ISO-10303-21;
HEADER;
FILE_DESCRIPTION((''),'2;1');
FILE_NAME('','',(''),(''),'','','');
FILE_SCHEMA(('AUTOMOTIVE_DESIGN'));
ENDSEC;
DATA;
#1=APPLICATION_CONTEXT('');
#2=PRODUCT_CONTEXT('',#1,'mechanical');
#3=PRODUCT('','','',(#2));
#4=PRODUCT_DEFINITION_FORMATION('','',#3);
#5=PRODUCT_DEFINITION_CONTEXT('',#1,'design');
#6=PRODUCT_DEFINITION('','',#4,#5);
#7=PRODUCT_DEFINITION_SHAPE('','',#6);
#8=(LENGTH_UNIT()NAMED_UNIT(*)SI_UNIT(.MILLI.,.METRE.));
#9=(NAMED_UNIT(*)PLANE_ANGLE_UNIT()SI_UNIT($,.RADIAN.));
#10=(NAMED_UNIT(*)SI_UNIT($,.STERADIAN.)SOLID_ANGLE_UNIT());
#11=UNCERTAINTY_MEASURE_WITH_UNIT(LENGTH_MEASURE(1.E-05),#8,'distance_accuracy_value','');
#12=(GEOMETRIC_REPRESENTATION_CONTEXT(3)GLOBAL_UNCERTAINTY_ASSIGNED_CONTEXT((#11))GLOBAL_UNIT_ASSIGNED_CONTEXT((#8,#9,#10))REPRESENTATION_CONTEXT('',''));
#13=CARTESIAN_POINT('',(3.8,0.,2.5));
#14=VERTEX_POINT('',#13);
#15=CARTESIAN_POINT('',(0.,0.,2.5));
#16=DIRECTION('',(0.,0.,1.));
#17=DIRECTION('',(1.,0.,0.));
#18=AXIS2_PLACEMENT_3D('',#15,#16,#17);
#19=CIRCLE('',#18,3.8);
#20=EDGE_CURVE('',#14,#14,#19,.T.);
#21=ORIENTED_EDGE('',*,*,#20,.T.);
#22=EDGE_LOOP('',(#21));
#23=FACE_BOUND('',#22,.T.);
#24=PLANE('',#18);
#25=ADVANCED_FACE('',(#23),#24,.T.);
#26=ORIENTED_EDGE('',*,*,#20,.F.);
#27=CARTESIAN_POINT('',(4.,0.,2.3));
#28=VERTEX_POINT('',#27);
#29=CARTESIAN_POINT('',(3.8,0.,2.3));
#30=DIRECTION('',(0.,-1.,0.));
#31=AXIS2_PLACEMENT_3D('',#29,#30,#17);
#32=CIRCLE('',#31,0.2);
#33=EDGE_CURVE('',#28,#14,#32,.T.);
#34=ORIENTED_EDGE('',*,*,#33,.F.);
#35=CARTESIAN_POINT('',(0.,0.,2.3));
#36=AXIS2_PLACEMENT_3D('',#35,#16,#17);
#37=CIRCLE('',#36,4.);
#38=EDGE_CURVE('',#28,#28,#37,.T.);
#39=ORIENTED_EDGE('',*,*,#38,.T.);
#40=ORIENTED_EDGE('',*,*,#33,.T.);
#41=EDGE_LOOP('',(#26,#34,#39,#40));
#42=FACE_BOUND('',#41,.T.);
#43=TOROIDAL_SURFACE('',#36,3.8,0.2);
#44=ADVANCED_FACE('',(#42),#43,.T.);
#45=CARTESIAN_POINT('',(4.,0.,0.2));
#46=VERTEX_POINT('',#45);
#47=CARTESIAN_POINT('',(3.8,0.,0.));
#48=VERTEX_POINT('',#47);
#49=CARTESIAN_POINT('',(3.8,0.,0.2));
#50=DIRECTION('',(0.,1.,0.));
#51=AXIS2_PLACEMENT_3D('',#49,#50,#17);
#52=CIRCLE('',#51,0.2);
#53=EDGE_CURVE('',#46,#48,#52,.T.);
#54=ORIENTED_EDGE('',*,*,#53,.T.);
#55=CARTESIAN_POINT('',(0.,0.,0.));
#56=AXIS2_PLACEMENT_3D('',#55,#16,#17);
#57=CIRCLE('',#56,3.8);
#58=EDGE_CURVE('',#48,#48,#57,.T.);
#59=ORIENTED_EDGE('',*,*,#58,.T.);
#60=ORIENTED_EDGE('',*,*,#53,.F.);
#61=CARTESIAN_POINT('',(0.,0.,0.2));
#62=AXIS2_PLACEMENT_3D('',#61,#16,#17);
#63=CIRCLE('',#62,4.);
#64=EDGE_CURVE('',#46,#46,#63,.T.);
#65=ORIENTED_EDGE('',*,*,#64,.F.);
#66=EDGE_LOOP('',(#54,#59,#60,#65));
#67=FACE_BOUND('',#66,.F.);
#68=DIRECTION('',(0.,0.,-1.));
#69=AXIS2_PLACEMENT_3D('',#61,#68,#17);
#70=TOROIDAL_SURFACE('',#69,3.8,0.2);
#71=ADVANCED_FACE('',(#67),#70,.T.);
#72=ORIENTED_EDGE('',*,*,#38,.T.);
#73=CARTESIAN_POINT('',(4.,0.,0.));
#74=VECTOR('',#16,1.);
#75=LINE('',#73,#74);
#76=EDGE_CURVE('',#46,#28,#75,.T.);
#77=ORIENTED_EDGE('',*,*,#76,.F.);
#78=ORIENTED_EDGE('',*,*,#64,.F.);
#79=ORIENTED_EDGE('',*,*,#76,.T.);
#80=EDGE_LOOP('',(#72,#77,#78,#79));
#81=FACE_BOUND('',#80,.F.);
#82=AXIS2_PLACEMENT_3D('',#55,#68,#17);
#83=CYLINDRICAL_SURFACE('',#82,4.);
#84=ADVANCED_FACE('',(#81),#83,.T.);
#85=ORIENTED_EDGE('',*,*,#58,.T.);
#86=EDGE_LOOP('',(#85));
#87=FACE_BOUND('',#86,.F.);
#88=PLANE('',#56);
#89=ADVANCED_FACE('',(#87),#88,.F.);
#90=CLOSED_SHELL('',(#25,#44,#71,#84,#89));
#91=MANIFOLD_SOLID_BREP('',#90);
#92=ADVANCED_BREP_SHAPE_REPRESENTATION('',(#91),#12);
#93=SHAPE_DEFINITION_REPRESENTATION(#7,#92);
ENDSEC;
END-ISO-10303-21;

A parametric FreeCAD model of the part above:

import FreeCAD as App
import Part
import Sketcher
Q = App.Units.Quantity


def edges_at(feature, points):
    """Names of the edges that pass closest to the given points."""
    edges = feature.Shape.Edges
    near = lambda p: min(range(len(edges)), key=lambda i: edges[i].distToShape(Part.Vertex(*p))[0])
    return sorted({f"Edge{near(p) + 1}" for p in points})

doc = App.newDocument("Part")
body = doc.addObject("PartDesign::Body", "Body")

# Sketch on XY plane
sketch1 = body.newObject("Sketcher::SketchObject", "Sketch")
sketch1.AttachmentSupport = (doc.getObject("XY_Plane"), [""])
sketch1.MapMode = "FlatFace"
sketch1.addGeometry(Part.Circle(App.Vector(0, 0, 0), App.Vector(0, 0, 1), 4), False)
sketch1.addConstraint(Sketcher.Constraint("Coincident", 0, 3, -1, 1))
sketch1.addConstraint(Sketcher.Constraint("Diameter", 0, Q("8 mm")))
pad1 = body.newObject("PartDesign::Pad", "Pad")
pad1.Profile = sketch1
pad1.Length = 2.5
doc.recompute()

fillet = body.newObject("PartDesign::Fillet", "Fillet")
fillet.Base = (pad1, edges_at(pad1, [(-3.729, -1.446, 2.5)]))
fillet.Radius = 0.2
doc.recompute()

fillet2 = body.newObject("PartDesign::Fillet", "Fillet001")
fillet2.Base = (fillet, edges_at(fillet, [(-3.729, -1.446, 0)]))
fillet2.Radius = 0.2

doc.recompute()
